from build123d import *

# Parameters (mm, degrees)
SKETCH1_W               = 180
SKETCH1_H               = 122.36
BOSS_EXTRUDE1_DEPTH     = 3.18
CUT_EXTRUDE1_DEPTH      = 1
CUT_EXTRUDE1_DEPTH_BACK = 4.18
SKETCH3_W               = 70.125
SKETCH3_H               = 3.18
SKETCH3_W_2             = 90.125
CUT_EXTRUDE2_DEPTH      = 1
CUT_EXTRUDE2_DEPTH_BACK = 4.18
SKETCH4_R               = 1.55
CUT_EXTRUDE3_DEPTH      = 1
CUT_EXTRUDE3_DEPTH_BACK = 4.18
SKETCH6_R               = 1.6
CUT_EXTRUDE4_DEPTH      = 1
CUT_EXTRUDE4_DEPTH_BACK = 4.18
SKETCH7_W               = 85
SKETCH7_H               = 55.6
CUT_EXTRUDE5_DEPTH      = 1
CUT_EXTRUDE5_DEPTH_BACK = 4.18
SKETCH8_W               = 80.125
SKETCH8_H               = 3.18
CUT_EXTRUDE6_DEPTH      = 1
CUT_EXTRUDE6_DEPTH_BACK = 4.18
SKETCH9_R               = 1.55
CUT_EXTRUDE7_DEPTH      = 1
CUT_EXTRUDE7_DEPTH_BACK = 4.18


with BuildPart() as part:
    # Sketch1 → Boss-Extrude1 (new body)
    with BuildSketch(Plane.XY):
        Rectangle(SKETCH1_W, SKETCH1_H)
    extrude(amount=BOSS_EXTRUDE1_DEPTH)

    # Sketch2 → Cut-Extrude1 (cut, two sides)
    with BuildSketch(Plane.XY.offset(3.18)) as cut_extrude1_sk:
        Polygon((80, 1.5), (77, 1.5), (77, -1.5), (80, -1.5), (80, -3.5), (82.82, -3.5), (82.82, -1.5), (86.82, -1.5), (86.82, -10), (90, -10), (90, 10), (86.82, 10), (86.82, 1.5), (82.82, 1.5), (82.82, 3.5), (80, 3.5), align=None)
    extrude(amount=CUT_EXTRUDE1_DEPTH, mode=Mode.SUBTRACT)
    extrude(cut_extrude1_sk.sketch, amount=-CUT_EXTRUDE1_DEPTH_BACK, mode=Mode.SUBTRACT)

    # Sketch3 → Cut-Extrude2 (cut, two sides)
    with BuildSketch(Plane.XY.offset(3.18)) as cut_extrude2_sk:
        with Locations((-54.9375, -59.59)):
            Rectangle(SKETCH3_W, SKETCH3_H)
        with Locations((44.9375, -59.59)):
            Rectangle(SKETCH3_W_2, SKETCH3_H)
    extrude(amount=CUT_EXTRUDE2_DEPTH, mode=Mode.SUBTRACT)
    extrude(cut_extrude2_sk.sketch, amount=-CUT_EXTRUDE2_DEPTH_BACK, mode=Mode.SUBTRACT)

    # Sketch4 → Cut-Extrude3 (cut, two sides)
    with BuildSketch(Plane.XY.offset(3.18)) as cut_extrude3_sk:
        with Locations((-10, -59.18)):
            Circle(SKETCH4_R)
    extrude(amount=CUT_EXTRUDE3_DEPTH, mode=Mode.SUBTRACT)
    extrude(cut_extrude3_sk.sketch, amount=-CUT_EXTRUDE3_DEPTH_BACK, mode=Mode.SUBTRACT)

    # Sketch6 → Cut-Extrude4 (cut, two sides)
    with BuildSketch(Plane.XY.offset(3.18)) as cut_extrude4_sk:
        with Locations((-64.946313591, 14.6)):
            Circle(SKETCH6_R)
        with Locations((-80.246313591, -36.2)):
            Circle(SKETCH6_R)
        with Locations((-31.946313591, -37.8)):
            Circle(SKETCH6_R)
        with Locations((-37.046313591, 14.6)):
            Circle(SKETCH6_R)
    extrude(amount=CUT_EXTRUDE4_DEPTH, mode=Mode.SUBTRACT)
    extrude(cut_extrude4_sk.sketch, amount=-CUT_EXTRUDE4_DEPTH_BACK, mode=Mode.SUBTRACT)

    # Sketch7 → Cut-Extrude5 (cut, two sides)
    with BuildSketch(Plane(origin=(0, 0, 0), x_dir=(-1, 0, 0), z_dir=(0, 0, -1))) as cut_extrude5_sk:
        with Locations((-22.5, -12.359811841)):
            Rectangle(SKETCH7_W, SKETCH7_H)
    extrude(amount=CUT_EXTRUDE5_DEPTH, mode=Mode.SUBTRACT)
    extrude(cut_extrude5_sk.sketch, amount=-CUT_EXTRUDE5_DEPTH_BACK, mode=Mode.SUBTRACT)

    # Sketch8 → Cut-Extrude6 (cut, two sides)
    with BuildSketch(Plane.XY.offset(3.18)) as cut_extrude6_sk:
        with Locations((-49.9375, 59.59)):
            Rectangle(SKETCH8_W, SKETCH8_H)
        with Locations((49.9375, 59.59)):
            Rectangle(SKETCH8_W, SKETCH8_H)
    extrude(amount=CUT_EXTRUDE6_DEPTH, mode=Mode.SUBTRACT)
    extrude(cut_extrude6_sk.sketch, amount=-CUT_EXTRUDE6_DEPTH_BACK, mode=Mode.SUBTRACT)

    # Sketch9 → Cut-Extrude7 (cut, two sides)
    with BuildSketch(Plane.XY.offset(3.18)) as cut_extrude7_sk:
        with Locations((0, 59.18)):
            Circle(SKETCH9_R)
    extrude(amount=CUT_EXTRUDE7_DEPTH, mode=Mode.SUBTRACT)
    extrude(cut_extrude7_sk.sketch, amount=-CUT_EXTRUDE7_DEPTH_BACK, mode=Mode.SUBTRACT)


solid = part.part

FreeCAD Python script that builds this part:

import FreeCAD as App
import Part
import Sketcher


def add_polygon(sketch, points):
    """Adds a closed chain of lines whose ends are joined by coincident constraints."""
    first, n = sketch.GeometryCount, len(points)
    for a, b in zip(points, points[1:] + points[:1]):
        sketch.addGeometry(Part.LineSegment(App.Vector(*a, 0), App.Vector(*b, 0)), False)
    for i in range(n):
        sketch.addConstraint(Sketcher.Constraint("Coincident", first + i, 2, first + (i + 1) % n, 1))

doc = App.newDocument("Part")
body = doc.addObject("PartDesign::Body", "Body")

# Sketch on XY plane
sketch1 = body.newObject("Sketcher::SketchObject", "Sketch")
sketch1.AttachmentSupport = (doc.getObject("XY_Plane"), [""])
sketch1.MapMode = "FlatFace"
add_polygon(sketch1, [(-90, 61), (-90, -61), (90, -61), (90, 61)])  # lines 0-3
sketch1.addConstraint([
    Sketcher.Constraint("Vertical", 0),
    Sketcher.Constraint("Horizontal", 1),
    Sketcher.Constraint("Vertical", 2),
    Sketcher.Constraint("Horizontal", 3),
    Sketcher.Constraint("Symmetric", 0, 2, 2, 2, -1, 1),
    Sketcher.Constraint("DistanceX", 1, 1, 1, 2, 180.0),
    Sketcher.Constraint("DistanceY", 0, 2, 0, 1, 122.36),
])
pad1 = body.newObject("PartDesign::Pad", "Pad")
pad1.Profile = sketch1
pad1.Length = 3.18

# Sketch on XY plane
sketch2 = body.newObject("Sketcher::SketchObject", "Sketch001")
sketch2.AttachmentSupport = (doc.getObject("XY_Plane"), [""])
sketch2.MapMode = "FlatFace"
sketch2.AttachmentOffset = App.Placement(App.Vector(0, 0, 3.18), App.Rotation())
add_polygon(sketch2, [(80, 1.5), (77, 1.5), (77, -1.5), (80, -1.5), (80, -3.5), (82.8, -3.5), (82.8, -1.5), (86.8, -1.5), (86.8, -10), (90, -10), (90, 10), (86.8, 10), (86.8, 1.5), (82.8, 1.5), (82.8, 3.5), (80, 3.5)])  # lines 0-15
sketch2.addConstraint([
    Sketcher.Constraint("Horizontal", 0),
    Sketcher.Constraint("Vertical", 1),
    Sketcher.Constraint("Horizontal", 2),
    Sketcher.Constraint("Vertical", 3),
    Sketcher.Constraint("Horizontal", 4),
    Sketcher.Constraint("Vertical", 5),
    Sketcher.Constraint("Horizontal", 6),
    Sketcher.Constraint("Vertical", 7),
    Sketcher.Constraint("Horizontal", 8),
    Sketcher.Constraint("Vertical", 9),
    Sketcher.Constraint("Horizontal", 10),
    Sketcher.Constraint("Vertical", 11),
    Sketcher.Constraint("Horizontal", 12),
    Sketcher.Constraint("Vertical", 13),
    Sketcher.Constraint("Horizontal", 14),
    Sketcher.Constraint("Vertical", 15),
    Sketcher.Constraint("Symmetric", 7, 2, 10, 2, -1),
    Sketcher.Constraint("Symmetric", 5, 2, 12, 2, -1),
    Sketcher.Constraint("Symmetric", 3, 2, 14, 2, -1),
    Sketcher.Constraint("Horizontal", 2, 2, 5, 2),
    Sketcher.Constraint("Horizontal", 0, 2, 11, 2),
    Sketcher.Constraint("Equal", 2, 1),
    Sketcher.Constraint("DistanceX", 0, 2, 0, 1, 3.0),
    Sketcher.Constraint("DistanceX", 6, 1, 6, 2, 4.0),
    Sketcher.Constraint("DistanceY", 3, 2, 3, 1, 2.0),
    Sketcher.Constraint("DistanceY", 9, 1, 9, 2, 20.0),
    Sketcher.Constraint("DistanceX", -1, 1, 0, 2, 77.0),
    Sketcher.Constraint("DistanceX", -1, 1, 8, 2, 90.0),
    Sketcher.Constraint("DistanceX", 4, 1, 4, 2, 2.82),
])
pocket1 = body.newObject("PartDesign::Pocket", "Pocket")
pocket1.Profile = sketch2
pocket1.Type = "ThroughAll"
pocket1.Midplane = True

# Sketch on XY plane
sketch3 = body.newObject("Sketcher::SketchObject", "Sketch002")
sketch3.AttachmentSupport = (doc.getObject("XY_Plane"), [""])
sketch3.MapMode = "FlatFace"
sketch3.AttachmentOffset = App.Placement(App.Vector(0, 0, 3.18), App.Rotation())
add_polygon(sketch3, [(-90, -58), (-90, -61.2), (-19.9, -61.2), (-19.9, -58)])  # lines 0-3
add_polygon(sketch3, [(-0.1, -58), (-0.1, -61.2), (90, -61.2), (90, -58)])  # lines 4-7
sketch3.addConstraint([
    Sketcher.Constraint("Vertical", 0),
    Sketcher.Constraint("Horizontal", 1),
    Sketcher.Constraint("Vertical", 2),
    Sketcher.Constraint("Horizontal", 3),
    Sketcher.Constraint("Vertical", 4),
    Sketcher.Constraint("Horizontal", 5),
    Sketcher.Constraint("Vertical", 6),
    Sketcher.Constraint("Horizontal", 7),
    Sketcher.Constraint("Symmetric", 0, 2, 5, 2, -2),
    Sketcher.Constraint("Horizontal", 3, 2, 6, 2),
    Sketcher.Constraint("DistanceX", 0, 2, -1, 1, 90.0),
    Sketcher.Constraint("DistanceY", 2, 2, -1, 1, 58.0),
    Sketcher.Constraint("DistanceY", 0, 2, 0, 1, 3.18),
    Sketcher.Constraint("DistanceX", 1, 1, 1, 2, 70.125),
    Sketcher.Constraint("DistanceX", 5, 1, 5, 2, 90.125),
])
pocket2 = body.newObject("PartDesign::Pocket", "Pocket001")
pocket2.Profile = sketch3
pocket2.Type = "ThroughAll"
pocket2.Midplane = True

# Sketch on XY plane
sketch4 = body.newObject("Sketcher::SketchObject", "Sketch003")
sketch4.AttachmentSupport = (doc.getObject("XY_Plane"), [""])
sketch4.MapMode = "FlatFace"
sketch4.AttachmentOffset = App.Placement(App.Vector(0, 0, 3.18), App.Rotation())
sketch4.addGeometry(Part.Circle(App.Vector(-10, -59.2, 0), App.Vector(0, 0, 1), 1.6), False)
sketch4.addConstraint([
    Sketcher.Constraint("Diameter", 0, 3.1),
    Sketcher.Constraint("DistanceX", 0, 3, -1, 1, 10.0),
    Sketcher.Constraint("DistanceY", 0, 3, -1, 1, 59.18),
])
pocket3 = body.newObject("PartDesign::Pocket", "Pocket002")
pocket3.Profile = sketch4
pocket3.Type = "ThroughAll"
pocket3.Midplane = True

# Sketch on XY plane
sketch5 = body.newObject("Sketcher::SketchObject", "Sketch004")
sketch5.AttachmentSupport = (doc.getObject("XY_Plane"), [""])
sketch5.MapMode = "FlatFace"
sketch5.AttachmentOffset = App.Placement(App.Vector(0, 0, 3.18), App.Rotation())
sketch5.addGeometry([
    Part.Circle(App.Vector(-64.9, 14.6, 0), App.Vector(0, 0, 1), 1.6),
    Part.Circle(App.Vector(-80.2, -36.2, 0), App.Vector(0, 0, 1), 1.6),
    Part.Circle(App.Vector(-31.9, -37.8, 0), App.Vector(0, 0, 1), 1.6),
    Part.Circle(App.Vector(-37, 14.6, 0), App.Vector(0, 0, 1), 1.6),
], False)
sketch5.addConstraint([
    Sketcher.Constraint("Equal", 0, 1),
    Sketcher.Constraint("Equal", 1, 2),
    Sketcher.Constraint("Equal", 2, 3),
    Sketcher.Constraint("Horizontal", 0, 3, 3, 3),
    Sketcher.Constraint("Diameter", 0, 3.2),
    Sketcher.Constraint("DistanceX", 0, 3, 2, 3, 33.0),
    Sketcher.Constraint("DistanceY", -1, 1, 0, 3, 14.6),
    Sketcher.Constraint("DistanceY", 1, 3, -1, 1, 36.2),
    Sketcher.Constraint("DistanceY", 2, 3, -1, 1, 37.8),
    Sketcher.Constraint("DistanceX", 1, 3, 0, 3, 15.3),
    Sketcher.Constraint("DistanceX", 0, 3, 3, 3, 27.9),
    Sketcher.Constraint("DistanceX", 0, 3, -1, 1, 64.946314),
])
pocket4 = body.newObject("PartDesign::Pocket", "Pocket003")
pocket4.Profile = sketch5
pocket4.Type = "ThroughAll"
pocket4.Midplane = True

# Sketch on XY plane
sketch6 = body.newObject("Sketcher::SketchObject", "Sketch005")
sketch6.AttachmentSupport = (doc.getObject("XY_Plane"), [""])
sketch6.MapMode = "FlatFace"
add_polygon(sketch6, [(65, 15), (65, -40), (-20, -40), (-20, 15)])  # lines 0-3
sketch6.addConstraint([
    Sketcher.Constraint("Vertical", 0),
    Sketcher.Constraint("Horizontal", 1),
    Sketcher.Constraint("Vertical", 2),
    Sketcher.Constraint("Horizontal", 3),
    Sketcher.Constraint("DistanceX", 1, 2, 1, 1, 85.0),
    Sketcher.Constraint("DistanceY", 0, 2, 0, 1, 55.6),
    Sketcher.Constraint("DistanceX", -1, 1, 0, 2, 65.0),
    Sketcher.Constraint("DistanceY", 0, 2, -1, 1, 40.159812),
])
pocket5 = body.newObject("PartDesign::Pocket", "Pocket004")
pocket5.Profile = sketch6
pocket5.Type = "ThroughAll"
pocket5.Midplane = True

# Sketch on XY plane
sketch7 = body.newObject("Sketcher::SketchObject", "Sketch006")
sketch7.AttachmentSupport = (doc.getObject("XY_Plane"), [""])
sketch7.MapMode = "FlatFace"
sketch7.AttachmentOffset = App.Placement(App.Vector(0, 0, 3.18), App.Rotation())
add_polygon(sketch7, [(-90, 61.2), (-90, 58), (-9.9, 58), (-9.9, 61.2)])  # lines 0-3
add_polygon(sketch7, [(9.9, 61.2), (9.9, 58), (90, 58), (90, 61.2)])  # lines 4-7
sketch7.addConstraint([
    Sketcher.Constraint("Vertical", 0),
    Sketcher.Constraint("Horizontal", 1),
    Sketcher.Constraint("Vertical", 2),
    Sketcher.Constraint("Horizontal", 3),
    Sketcher.Constraint("Vertical", 4),
    Sketcher.Constraint("Horizontal", 5),
    Sketcher.Constraint("Vertical", 6),
    Sketcher.Constraint("Horizontal", 7),
    Sketcher.Constraint("Symmetric", 1, 2, 4, 2, -2),
    Sketcher.Constraint("Symmetric", 3, 2, 6, 2, -2),
    Sketcher.Constraint("DistanceX", 0, 2, -1, 1, 90.0),
    Sketcher.Constraint("DistanceY", -1, 1, 0, 2, 58.0),
    Sketcher.Constraint("DistanceY", 0, 2, 0, 1, 3.18),
    Sketcher.Constraint("DistanceX", 1, 1, 1, 2, 80.125),
])
pocket6 = body.newObject("PartDesign::Pocket", "Pocket005")
pocket6.Profile = sketch7
pocket6.Type = "ThroughAll"
pocket6.Midplane = True

# Sketch on XY plane
sketch8 = body.newObject("Sketcher::SketchObject", "Sketch007")
sketch8.AttachmentSupport = (doc.getObject("XY_Plane"), [""])
sketch8.MapMode = "FlatFace"
sketch8.AttachmentOffset = App.Placement(App.Vector(0, 0, 3.18), App.Rotation())
sketch8.addGeometry(Part.Circle(App.Vector(0, 59.2, 0), App.Vector(0, 0, 1), 1.6), False)
sketch8.addConstraint([
    Sketcher.Constraint("PointOnObject", 0, 3, -2),
    Sketcher.Constraint("Diameter", 0, 3.1),
    Sketcher.Constraint("DistanceY", -1, 1, 0, 3, 59.18),
])
pocket7 = body.newObject("PartDesign::Pocket", "Pocket006")
pocket7.Profile = sketch8
pocket7.Type = "ThroughAll"
pocket7.Midplane = True

doc.recompute()
